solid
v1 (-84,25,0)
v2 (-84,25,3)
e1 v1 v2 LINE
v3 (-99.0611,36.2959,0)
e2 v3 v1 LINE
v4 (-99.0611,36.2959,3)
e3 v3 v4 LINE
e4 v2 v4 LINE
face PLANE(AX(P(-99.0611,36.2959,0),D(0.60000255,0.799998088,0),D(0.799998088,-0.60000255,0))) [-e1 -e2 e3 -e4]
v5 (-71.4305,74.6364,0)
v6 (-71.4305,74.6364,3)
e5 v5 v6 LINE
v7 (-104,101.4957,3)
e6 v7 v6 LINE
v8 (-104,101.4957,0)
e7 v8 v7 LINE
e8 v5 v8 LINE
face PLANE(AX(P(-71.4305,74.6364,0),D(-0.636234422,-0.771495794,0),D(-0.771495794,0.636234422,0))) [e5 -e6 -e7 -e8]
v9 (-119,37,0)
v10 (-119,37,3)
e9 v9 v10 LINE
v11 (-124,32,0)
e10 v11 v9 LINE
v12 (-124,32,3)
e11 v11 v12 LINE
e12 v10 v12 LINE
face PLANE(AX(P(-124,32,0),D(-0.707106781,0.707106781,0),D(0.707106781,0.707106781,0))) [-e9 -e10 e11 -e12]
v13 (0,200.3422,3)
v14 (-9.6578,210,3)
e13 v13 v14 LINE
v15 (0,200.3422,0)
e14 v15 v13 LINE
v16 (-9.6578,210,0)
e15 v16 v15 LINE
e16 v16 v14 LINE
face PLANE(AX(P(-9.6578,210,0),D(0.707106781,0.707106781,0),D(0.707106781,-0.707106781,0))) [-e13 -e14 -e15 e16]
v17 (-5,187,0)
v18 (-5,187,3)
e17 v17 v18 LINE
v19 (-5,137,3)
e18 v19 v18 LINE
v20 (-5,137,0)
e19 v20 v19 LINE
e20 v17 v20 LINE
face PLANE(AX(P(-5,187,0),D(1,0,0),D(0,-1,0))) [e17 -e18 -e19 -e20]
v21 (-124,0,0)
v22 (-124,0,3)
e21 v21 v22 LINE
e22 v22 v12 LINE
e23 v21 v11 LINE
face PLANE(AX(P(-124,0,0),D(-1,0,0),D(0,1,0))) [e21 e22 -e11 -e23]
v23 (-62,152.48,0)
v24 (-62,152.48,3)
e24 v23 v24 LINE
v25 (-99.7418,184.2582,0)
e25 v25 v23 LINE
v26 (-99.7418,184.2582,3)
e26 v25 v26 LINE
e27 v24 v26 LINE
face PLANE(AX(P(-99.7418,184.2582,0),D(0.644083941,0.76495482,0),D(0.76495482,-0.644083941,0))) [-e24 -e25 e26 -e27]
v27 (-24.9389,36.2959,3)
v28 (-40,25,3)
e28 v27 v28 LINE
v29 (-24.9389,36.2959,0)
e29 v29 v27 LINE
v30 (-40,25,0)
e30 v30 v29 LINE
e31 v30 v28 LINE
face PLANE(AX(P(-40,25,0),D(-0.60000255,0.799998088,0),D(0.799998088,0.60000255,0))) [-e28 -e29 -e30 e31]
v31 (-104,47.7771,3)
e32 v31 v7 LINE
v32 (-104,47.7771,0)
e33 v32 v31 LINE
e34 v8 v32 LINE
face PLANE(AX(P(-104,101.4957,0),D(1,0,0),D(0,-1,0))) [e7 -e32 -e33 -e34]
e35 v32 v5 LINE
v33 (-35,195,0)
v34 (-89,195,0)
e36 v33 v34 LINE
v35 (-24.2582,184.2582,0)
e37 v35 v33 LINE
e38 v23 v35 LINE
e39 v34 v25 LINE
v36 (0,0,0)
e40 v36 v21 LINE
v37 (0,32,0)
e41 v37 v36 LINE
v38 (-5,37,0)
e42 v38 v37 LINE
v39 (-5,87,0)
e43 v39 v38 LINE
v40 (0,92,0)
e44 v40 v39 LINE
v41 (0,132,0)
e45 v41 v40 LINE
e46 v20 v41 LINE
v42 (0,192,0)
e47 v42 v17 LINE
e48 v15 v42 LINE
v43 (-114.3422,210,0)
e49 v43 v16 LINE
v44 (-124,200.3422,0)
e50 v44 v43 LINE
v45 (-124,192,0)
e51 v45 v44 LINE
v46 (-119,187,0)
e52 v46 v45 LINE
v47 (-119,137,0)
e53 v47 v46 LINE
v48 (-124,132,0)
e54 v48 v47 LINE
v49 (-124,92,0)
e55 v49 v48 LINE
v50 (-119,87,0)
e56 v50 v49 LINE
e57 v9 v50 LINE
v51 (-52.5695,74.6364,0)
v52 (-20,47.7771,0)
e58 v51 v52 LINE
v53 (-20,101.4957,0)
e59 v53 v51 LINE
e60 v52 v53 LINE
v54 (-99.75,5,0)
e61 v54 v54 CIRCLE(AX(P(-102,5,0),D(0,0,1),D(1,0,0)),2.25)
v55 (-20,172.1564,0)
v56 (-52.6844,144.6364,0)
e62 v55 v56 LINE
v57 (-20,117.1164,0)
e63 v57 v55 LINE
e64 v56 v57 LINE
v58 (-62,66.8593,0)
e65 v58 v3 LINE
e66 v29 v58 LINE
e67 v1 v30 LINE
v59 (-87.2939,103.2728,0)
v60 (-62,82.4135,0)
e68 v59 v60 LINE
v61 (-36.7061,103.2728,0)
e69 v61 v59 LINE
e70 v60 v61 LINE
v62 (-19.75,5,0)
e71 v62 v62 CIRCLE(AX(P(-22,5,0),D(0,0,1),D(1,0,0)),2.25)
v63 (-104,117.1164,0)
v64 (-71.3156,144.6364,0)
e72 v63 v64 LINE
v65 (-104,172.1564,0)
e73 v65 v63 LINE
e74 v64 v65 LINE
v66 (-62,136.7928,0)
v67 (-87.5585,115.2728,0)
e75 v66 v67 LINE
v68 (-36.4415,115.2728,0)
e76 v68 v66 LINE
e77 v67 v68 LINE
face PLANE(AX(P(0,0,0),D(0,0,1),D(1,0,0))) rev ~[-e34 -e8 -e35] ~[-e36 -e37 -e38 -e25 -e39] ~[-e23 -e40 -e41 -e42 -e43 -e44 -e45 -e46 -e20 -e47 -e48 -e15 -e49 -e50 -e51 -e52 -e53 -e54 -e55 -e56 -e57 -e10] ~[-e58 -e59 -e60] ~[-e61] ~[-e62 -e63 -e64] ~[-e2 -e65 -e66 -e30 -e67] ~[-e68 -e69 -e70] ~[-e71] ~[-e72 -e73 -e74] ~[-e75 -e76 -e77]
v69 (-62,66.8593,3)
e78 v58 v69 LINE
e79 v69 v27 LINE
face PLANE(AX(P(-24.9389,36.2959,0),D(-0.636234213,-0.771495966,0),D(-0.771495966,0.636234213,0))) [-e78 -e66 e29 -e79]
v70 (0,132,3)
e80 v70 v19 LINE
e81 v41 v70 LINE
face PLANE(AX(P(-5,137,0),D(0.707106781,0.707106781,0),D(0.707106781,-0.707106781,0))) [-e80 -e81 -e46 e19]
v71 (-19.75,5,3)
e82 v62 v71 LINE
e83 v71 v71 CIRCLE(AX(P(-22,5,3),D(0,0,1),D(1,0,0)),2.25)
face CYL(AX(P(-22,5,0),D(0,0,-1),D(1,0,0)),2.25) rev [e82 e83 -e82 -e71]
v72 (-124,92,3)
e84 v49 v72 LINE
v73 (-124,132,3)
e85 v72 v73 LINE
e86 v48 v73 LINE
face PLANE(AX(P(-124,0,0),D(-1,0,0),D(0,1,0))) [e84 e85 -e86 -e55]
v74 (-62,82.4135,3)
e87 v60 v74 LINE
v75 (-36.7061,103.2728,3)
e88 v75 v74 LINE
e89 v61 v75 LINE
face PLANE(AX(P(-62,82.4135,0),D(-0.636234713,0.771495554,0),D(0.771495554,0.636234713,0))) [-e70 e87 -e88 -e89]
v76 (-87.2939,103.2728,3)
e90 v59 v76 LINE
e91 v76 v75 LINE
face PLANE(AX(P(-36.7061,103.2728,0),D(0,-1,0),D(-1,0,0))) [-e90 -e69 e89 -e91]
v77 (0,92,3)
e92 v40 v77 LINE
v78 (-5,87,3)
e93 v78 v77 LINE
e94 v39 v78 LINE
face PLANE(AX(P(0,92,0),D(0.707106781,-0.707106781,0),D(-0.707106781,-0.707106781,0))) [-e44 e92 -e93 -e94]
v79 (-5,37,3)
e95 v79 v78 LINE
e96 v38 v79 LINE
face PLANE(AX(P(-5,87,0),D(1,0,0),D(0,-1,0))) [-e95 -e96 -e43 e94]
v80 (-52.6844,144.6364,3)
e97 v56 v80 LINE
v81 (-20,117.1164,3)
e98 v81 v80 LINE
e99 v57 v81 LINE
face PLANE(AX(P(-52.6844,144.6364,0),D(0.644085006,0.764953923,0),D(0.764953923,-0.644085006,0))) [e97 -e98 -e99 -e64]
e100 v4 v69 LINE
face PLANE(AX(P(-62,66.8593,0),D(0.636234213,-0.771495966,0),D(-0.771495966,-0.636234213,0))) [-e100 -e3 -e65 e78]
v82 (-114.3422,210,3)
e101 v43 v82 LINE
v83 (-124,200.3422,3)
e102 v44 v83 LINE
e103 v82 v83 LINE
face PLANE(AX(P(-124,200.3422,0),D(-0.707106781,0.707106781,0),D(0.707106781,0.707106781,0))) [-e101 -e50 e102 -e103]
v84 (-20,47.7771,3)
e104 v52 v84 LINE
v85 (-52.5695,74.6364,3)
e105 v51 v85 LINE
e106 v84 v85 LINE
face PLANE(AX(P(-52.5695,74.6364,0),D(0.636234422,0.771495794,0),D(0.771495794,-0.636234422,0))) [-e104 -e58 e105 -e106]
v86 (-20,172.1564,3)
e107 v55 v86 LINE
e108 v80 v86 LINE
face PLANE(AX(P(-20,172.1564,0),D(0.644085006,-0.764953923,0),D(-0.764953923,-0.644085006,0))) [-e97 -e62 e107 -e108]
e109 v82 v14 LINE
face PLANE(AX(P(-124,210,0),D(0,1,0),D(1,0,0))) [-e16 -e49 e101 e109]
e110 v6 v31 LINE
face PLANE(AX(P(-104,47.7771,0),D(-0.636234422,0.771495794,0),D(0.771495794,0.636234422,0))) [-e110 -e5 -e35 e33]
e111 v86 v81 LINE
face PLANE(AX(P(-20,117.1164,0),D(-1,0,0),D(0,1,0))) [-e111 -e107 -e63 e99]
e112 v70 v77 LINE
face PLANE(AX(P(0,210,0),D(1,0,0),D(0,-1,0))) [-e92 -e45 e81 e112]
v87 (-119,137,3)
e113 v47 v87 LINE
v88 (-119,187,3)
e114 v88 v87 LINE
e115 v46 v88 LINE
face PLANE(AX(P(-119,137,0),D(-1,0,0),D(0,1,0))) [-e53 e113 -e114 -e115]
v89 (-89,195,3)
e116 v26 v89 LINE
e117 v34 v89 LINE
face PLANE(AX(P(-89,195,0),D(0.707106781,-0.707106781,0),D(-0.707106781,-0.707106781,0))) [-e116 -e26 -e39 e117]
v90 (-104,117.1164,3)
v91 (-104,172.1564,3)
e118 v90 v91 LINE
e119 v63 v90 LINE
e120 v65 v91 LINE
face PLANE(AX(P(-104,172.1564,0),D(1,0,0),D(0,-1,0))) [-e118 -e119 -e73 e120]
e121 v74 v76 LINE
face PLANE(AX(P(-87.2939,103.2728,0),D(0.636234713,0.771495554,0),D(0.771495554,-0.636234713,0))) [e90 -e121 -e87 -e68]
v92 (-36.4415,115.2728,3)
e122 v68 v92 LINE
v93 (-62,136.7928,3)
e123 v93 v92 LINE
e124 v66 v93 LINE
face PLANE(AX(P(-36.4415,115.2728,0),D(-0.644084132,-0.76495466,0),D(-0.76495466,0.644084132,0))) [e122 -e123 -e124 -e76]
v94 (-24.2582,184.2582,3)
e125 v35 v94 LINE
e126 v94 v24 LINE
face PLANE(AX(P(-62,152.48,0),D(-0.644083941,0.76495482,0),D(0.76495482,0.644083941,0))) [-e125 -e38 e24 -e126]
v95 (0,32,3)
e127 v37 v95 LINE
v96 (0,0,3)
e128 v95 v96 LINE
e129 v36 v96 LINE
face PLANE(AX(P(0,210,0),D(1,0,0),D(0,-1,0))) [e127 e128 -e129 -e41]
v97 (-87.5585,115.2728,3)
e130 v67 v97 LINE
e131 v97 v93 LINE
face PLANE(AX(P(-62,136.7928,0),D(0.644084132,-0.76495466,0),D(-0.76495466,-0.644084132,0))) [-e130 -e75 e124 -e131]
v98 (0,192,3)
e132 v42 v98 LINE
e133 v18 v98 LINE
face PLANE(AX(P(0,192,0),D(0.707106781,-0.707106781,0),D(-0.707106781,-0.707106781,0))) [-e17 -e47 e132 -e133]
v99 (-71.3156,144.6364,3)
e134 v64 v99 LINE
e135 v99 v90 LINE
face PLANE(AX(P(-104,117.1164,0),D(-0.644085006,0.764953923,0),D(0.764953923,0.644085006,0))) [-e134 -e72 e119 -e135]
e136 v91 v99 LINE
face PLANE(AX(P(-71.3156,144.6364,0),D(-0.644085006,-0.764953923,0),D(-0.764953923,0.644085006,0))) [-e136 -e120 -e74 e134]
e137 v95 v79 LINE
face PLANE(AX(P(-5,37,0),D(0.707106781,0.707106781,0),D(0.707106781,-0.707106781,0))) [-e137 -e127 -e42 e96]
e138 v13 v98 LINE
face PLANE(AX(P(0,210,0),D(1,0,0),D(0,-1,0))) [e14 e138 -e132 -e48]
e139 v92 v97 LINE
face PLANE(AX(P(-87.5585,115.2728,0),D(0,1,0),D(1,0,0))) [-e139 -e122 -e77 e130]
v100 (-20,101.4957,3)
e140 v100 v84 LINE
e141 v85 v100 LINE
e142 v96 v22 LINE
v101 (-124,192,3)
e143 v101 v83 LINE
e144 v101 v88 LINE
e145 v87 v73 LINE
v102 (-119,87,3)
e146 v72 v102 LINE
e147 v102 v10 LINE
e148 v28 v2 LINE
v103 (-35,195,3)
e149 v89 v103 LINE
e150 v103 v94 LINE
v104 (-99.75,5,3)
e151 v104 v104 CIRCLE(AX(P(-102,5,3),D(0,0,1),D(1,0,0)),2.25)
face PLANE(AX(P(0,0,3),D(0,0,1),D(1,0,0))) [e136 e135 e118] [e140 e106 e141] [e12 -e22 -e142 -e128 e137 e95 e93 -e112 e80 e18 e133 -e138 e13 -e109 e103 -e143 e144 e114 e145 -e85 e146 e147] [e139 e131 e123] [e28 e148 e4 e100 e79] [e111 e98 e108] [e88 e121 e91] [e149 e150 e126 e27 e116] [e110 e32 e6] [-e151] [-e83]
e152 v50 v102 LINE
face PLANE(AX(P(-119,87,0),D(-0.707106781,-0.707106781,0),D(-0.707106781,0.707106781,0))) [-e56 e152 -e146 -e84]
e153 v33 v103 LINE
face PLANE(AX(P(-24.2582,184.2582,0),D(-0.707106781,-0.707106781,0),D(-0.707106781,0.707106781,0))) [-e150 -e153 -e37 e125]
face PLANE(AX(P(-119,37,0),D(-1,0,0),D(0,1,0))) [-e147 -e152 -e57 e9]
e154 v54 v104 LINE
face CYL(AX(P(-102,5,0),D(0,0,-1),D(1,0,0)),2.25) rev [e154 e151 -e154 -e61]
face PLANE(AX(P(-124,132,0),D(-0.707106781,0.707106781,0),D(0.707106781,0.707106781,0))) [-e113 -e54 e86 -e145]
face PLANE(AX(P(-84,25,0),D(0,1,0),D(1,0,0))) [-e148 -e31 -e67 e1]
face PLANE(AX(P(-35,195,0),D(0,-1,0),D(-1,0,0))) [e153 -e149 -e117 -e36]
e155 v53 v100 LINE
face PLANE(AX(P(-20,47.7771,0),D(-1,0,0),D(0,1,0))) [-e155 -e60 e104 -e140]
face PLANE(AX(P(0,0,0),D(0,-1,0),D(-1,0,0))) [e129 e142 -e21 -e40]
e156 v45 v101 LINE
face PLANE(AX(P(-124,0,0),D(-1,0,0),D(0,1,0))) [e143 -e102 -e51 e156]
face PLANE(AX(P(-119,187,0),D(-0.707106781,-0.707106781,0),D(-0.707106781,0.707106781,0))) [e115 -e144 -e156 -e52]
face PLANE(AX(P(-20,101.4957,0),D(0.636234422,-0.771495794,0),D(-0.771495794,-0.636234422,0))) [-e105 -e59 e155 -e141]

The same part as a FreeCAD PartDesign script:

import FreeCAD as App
import Part
import Sketcher
Q = App.Units.Quantity


def add_polygon(sketch, points):
    """Adds a closed chain of lines whose ends are joined by coincident constraints."""
    first, n = sketch.GeometryCount, len(points)
    for a, b in zip(points, points[1:] + points[:1]):
        sketch.addGeometry(Part.LineSegment(App.Vector(*a, 0), App.Vector(*b, 0)), False)
    for i in range(n):
        sketch.addConstraint(Sketcher.Constraint("Coincident", first + i, 2, first + (i + 1) % n, 1))

doc = App.newDocument("Part")
params = doc.addObject("Spreadsheet::Sheet", "Params")
for row, (alias, value) in enumerate([
    ("sketch1_width", "124 mm"),
    ("sketch1_height", "210 mm"),
    ("sketch1_diameter", "4.5 mm"),
    ("pad1_length", "3 mm"),
    ("sketch2_width", "44 mm"),
    ("sketch2_width2", "54 mm"),
    ("sketch2_height", "50 mm"),
    ("sketch2_height2", "60 mm"),
    ("sketch2_height3", "55.04 mm"),
], start=1):
    params.set(f"A{row}", alias)
    params.set(f"B{row}", "=" + value)
    params.setAlias(f"B{row}", alias)

body = doc.addObject("PartDesign::Body", "Body")

# Sketch on XY plane
sketch1 = doc.addObject("Sketcher::SketchObject", "Sketch")
body.addObject(sketch1)
sketch1.AttachmentSupport = (doc.XY_Plane, [""])
sketch1.MapMode = "FlatFace"
add_polygon(sketch1, [(-124, 0), (0, 0), (0, 210), (-124, 210)])  # lines 0-3
sketch1.addGeometry(Part.Circle(App.Vector(-102, 5, 0), App.Vector(0, 0, 1), 2.2), False)  # 4
sketch1.addGeometry(Part.Circle(App.Vector(-22, 5, 0), App.Vector(0, 0, 1), 2.2), False)  # 5
sketch1.addConstraint(Sketcher.Constraint("Horizontal", 0))
sketch1.addConstraint(Sketcher.Constraint("Vertical", 1))
sketch1.addConstraint(Sketcher.Constraint("Horizontal", 2))
sketch1.addConstraint(Sketcher.Constraint("Vertical", 3))
sketch1.addConstraint(Sketcher.Constraint("Coincident", 0, 2, -1, 1))
sketch1.addConstraint(Sketcher.Constraint("Equal", 4, 5))
sketch1.addConstraint(Sketcher.Constraint("Horizontal", 4, 3, 5, 3))
sketch1.addConstraint(Sketcher.Constraint("DistanceX", 0, 1, 0, 2, 124.0))
sketch1.addConstraint(Sketcher.Constraint("DistanceY", 1, 1, 1, 2, 210.0))
sketch1.addConstraint(Sketcher.Constraint("Diameter", 4, 4.5))
sketch1.addConstraint(Sketcher.Constraint("DistanceX", 4, 3, -1, 1, 102.0))
sketch1.addConstraint(Sketcher.Constraint("DistanceY", -1, 1, 4, 3, 5.0))
sketch1.addConstraint(Sketcher.Constraint("DistanceX", 5, 3, -1, 1, 22.0))
sketch1.setExpression("Constraints[11]", "Params.sketch1_width")
sketch1.setExpression("Constraints[12]", "Params.sketch1_height")
sketch1.setExpression("Constraints[13]", "Params.sketch1_diameter")
pad1 = doc.addObject("PartDesign::Pad", "Pad")
body.addObject(pad1)
pad1.Profile = sketch1
pad1.setExpression("Length", "Params.pad1_length")

# Sketch on XY plane
sketch2 = doc.addObject("Sketcher::SketchObject", "Sketch001")
body.addObject(sketch2)
sketch2.AttachmentSupport = (doc.XY_Plane, [""])
sketch2.MapMode = "FlatFace"
add_polygon(sketch2, [(-40, 25), (-84, 25), (-99, 36), (-62, 67), (-25, 36)])  # lines 0-4
add_polygon(sketch2, [(-20, 48), (-53, 75), (-20, 101)])  # lines 5-7
add_polygon(sketch2, [(-37, 103), (-62, 82), (-87, 103)])  # lines 8-10
add_polygon(sketch2, [(-24, 184), (-62, 152), (-100, 184), (-89, 195), (-35, 195)])  # lines 11-15
add_polygon(sketch2, [(-20, 172), (-20, 117), (-53, 145)])  # lines 16-18
add_polygon(sketch2, [(-71, 145), (-104, 117), (-104, 172)])  # lines 19-21
add_polygon(sketch2, [(-104, 101), (-71, 75), (-104, 48)])  # lines 22-24
add_polygon(sketch2, [(-36, 115), (-88, 115), (-62, 137)])  # lines 25-27
add_polygon(sketch2, [(-119, 187), (-119, 137), (-124, 132), (-124, 192)])  # lines 28-31
add_polygon(sketch2, [(-124, 32), (-124, 92), (-119, 87), (-119, 37)])  # lines 32-35
add_polygon(sketch2, [(-114, 210), (-124, 200), (-124, 210)])  # lines 36-38
add_polygon(sketch2, [(0, 200), (-10, 210), (0, 210)])  # lines 39-41
add_polygon(sketch2, [(0, 92), (0, 32), (-5, 37), (-5, 87)])  # lines 42-45
add_polygon(sketch2, [(-5, 187), (0, 192), (0, 132), (-5, 137)])  # lines 46-49
sketch2.addConstraint(Sketcher.Constraint("Horizontal", 0))
sketch2.addConstraint(Sketcher.Constraint("Vertical", 7))
sketch2.addConstraint(Sketcher.Constraint("Horizontal", 10))
sketch2.addConstraint(Sketcher.Constraint("Horizontal", 14))
sketch2.addConstraint(Sketcher.Constraint("Vertical", 16))
sketch2.addConstraint(Sketcher.Constraint("Vertical", 20))
sketch2.addConstraint(Sketcher.Constraint("Vertical", 24))
sketch2.addConstraint(Sketcher.Constraint("Horizontal", 25))
sketch2.addConstraint(Sketcher.Constraint("Vertical", 28))
sketch2.addConstraint(Sketcher.Constraint("Vertical", 30))
sketch2.addConstraint(Sketcher.Constraint("Vertical", 32))
sketch2.addConstraint(Sketcher.Constraint("Vertical", 34))
sketch2.addConstraint(Sketcher.Constraint("Vertical", 37))
sketch2.addConstraint(Sketcher.Constraint("Horizontal", 38))
sketch2.addConstraint(Sketcher.Constraint("Horizontal", 40))
sketch2.addConstraint(Sketcher.Constraint("Vertical", 41))
sketch2.addConstraint(Sketcher.Constraint("Vertical", 42))
sketch2.addConstraint(Sketcher.Constraint("Vertical", 44))
sketch2.addConstraint(Sketcher.Constraint("Vertical", 47))
sketch2.addConstraint(Sketcher.Constraint("Vertical", 49))
sketch2.addConstraint(Sketcher.Constraint("PointOnObject", 40, 2, -2))
sketch2.addConstraint(Sketcher.Constraint("PointOnObject", 42, 2, -2))
sketch2.addConstraint(Sketcher.Constraint("PointOnObject", 46, 2, -2))
sketch2.addConstraint(Sketcher.Constraint("Parallel", 3, 5))
sketch2.addConstraint(Sketcher.Constraint("Parallel", 2, 6))
sketch2.addConstraint(Sketcher.Constraint("Parallel", 6, 8))
sketch2.addConstraint(Sketcher.Constraint("Parallel", 5, 9))
sketch2.addConstraint(Sketcher.Constraint("Perpendicular", 13, 15))
sketch2.addConstraint(Sketcher.Constraint("Parallel", 12, 17))
sketch2.addConstraint(Sketcher.Constraint("Parallel", 11, 18))
sketch2.addConstraint(Sketcher.Constraint("Parallel", 18, 19))
sketch2.addConstraint(Sketcher.Constraint("Parallel", 17, 21))
sketch2.addConstraint(Sketcher.Constraint("Parallel", 9, 22))
sketch2.addConstraint(Sketcher.Constraint("Parallel", 8, 23))
sketch2.addConstraint(Sketcher.Constraint("Parallel", 19, 26))
sketch2.addConstraint(Sketcher.Constraint("Parallel", 21, 27))
sketch2.addConstraint(Sketcher.Constraint("Perpendicular", 15, 29))
sketch2.addConstraint(Sketcher.Constraint("Perpendicular", 29, 31))
sketch2.addConstraint(Sketcher.Constraint("Parallel", 31, 33))
sketch2.addConstraint(Sketcher.Constraint("Perpendicular", 33, 35))
sketch2.addConstraint(Sketcher.Constraint("Parallel", 35, 36))
sketch2.addConstraint(Sketcher.Constraint("Perpendicular", 36, 39))
sketch2.addConstraint(Sketcher.Constraint("Parallel", 39, 43))
sketch2.addConstraint(Sketcher.Constraint("Perpendicular", 43, 45))
sketch2.addConstraint(Sketcher.Constraint("Parallel", 45, 46))
sketch2.addConstraint(Sketcher.Constraint("Perpendicular", 46, 48))
sketch2.addConstraint(Sketcher.Constraint("Horizontal", 1, 2, 3, 2))
sketch2.addConstraint(Sketcher.Constraint("Horizontal", 12, 2, 15, 2))
sketch2.addConstraint(Sketcher.Constraint("Horizontal", 16, 2, 19, 2))
sketch2.addConstraint(Sketcher.Constraint("Horizontal", 18, 2, 20, 2))
sketch2.addConstraint(Sketcher.Constraint("Horizontal", 17, 2, 21, 2))
sketch2.addConstraint(Sketcher.Constraint("Horizontal", 5, 2, 22, 2))
sketch2.addConstraint(Sketcher.Constraint("Horizontal", 7, 2, 23, 2))
sketch2.addConstraint(Sketcher.Constraint("Horizontal", 6, 2, 24, 2))
sketch2.addConstraint(Sketcher.Constraint("Horizontal", 38, 2, 39, 2))
sketch2.addConstraint(Sketcher.Constraint("Horizontal", 36, 2, 41, 2))
sketch2.addConstraint(Sketcher.Constraint("Horizontal", 35, 2, 42, 2))
sketch2.addConstraint(Sketcher.Constraint("Horizontal", 34, 2, 43, 2))
sketch2.addConstraint(Sketcher.Constraint("Horizontal", 33, 2, 44, 2))
sketch2.addConstraint(Sketcher.Constraint("Horizontal", 32, 2, 45, 2))
sketch2.addConstraint(Sketcher.Constraint("Horizontal", 30, 2, 46, 2))
sketch2.addConstraint(Sketcher.Constraint("Horizontal", 29, 2, 47, 2))
sketch2.addConstraint(Sketcher.Constraint("Horizontal", 28, 2, 48, 2))
sketch2.addConstraint(Sketcher.Constraint("Vertical", 2, 2, 8, 2))
sketch2.addConstraint(Sketcher.Constraint("Vertical", 8, 2, 11, 2))
sketch2.addConstraint(Sketcher.Constraint("Vertical", 7, 2, 16, 2))
sketch2.addConstraint(Sketcher.Constraint("Vertical", 20, 2, 23, 2))
sketch2.addConstraint(Sketcher.Constraint("Vertical", 11, 2, 26, 2))
sketch2.addConstraint(Sketcher.Constraint("Vertical", 30, 2, 32, 2))
sketch2.addConstraint(Sketcher.Constraint("Vertical", 31, 2, 33, 2))
sketch2.addConstraint(Sketcher.Constraint("Vertical", 35, 2, 36, 2))
sketch2.addConstraint(Sketcher.Constraint("Equal", 30, 32))
sketch2.addConstraint(Sketcher.Constraint("Equal", 1, 4))
sketch2.addConstraint(Sketcher.Constraint("DistanceX", 0, 2, 0, 1, 44.0))
sketch2.addConstraint(Sketcher.Constraint("DistanceX", 14, 1, 14, 2, 54.0))
sketch2.addConstraint(Sketcher.Constraint("DistanceY", 28, 2, 28, 1, 50.0))
sketch2.addConstraint(Sketcher.Constraint("DistanceY", 30, 1, 30, 2, 60.0))
sketch2.addConstraint(Sketcher.Constraint("DistanceX", 0, 2, -1, 1, 84.0))
sketch2.addConstraint(Sketcher.Constraint("DistanceY", -1, 1, 0, 2, 25.0))
sketch2.addConstraint(Sketcher.Constraint("DistanceX", 6, 2, -1, 1, 20.0))
sketch2.addConstraint(Sketcher.Constraint("DistanceY", -1, 1, 13, 2, 195.0))
sketch2.addConstraint(Sketcher.Constraint("DistanceX", 19, 2, -1, 1, 104.0))
sketch2.addConstraint(Sketcher.Constraint("DistanceX", 28, 2, -1, 1, 119.0))
sketch2.addConstraint(Sketcher.Constraint("DistanceY", -1, 1, 28, 2, 137.0))
sketch2.addConstraint(Sketcher.Constraint("DistanceY", -1, 1, 32, 2, 92.0))
sketch2.addConstraint(Sketcher.Constraint("DistanceY", -1, 1, 37, 2, 210.0))
sketch2.addConstraint(Sketcher.Constraint("DistanceY", 9, 2, 25, 2, 12.0))
sketch2.addConstraint(Sketcher.Constraint("DistanceY", 16, 2, 16, 1, 55.04))
sketch2.addConstraint(Sketcher.Constraint("Angle", 1, Q("143.13 deg")))
sketch2.addConstraint(Sketcher.Constraint("DistanceX", 25, 2, 25, 1, 51.117))
sketch2.addConstraint(Sketcher.Constraint("DistanceY", -1, 1, 11, 2, 152.48))
sketch2.addConstraint(Sketcher.Constraint("DistanceY", 5, 2, 16, 2, 42.48))
sketch2.addConstraint(Sketcher.Constraint("DistanceY", 25, 2, 26, 2, 21.52))
sketch2.addConstraint(Sketcher.Constraint("Distance", 2, 48.038))
sketch2.addConstraint(Sketcher.Constraint("Distance", 5, 42.216))
sketch2.addConstraint(Sketcher.Constraint("DistanceX", 10, 1, 10, 2, 50.5878))
sketch2.addConstraint(Sketcher.Constraint("DistanceX", 38, 1, 38, 2, 9.6578))
sketch2.addConstraint(Sketcher.Constraint("DistanceY", 7, 2, 7, 1, 53.7186))
sketch2.addConstraint(Sketcher.Constraint("DistanceY", -1, 1, 7, 2, 47.777))
sketch2.addConstraint(Sketcher.Constraint("DistanceY", 5, 2, 8, 2, 7.777))
sketch2.setExpression("Constraints[123]", "Params.sketch2_width")
sketch2.setExpression("Constraints[124]", "Params.sketch2_width2")
sketch2.setExpression("Constraints[125]", "Params.sketch2_height")
sketch2.setExpression("Constraints[126]", "Params.sketch2_height2")
sketch2.setExpression("Constraints[137]", "Params.sketch2_height3")
pocket1 = doc.addObject("PartDesign::Pocket", "Pocket")
body.addObject(pocket1)
pocket1.Profile = sketch2
pocket1.Type = "ThroughAll"
pocket1.Reversed = True

doc.recompute()
